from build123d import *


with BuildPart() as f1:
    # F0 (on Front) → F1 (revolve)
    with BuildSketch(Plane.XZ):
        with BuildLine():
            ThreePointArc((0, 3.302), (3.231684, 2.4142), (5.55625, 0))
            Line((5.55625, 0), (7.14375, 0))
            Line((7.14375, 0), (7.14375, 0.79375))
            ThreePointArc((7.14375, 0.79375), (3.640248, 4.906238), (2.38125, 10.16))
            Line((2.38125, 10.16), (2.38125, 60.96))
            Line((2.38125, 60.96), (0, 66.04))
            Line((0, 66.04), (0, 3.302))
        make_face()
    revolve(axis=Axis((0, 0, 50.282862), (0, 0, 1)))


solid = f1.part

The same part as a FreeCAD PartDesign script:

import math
import FreeCAD as App
import Part
import Sketcher
from FreeCAD import Vector
Q = App.Units.Quantity

doc = App.newDocument("Part")
body = doc.addObject("PartDesign::Body", "Body")

sketch1 = doc.addObject("Sketcher::SketchObject", "Sketch")
body.addObject(sketch1)
sketch1.AttachmentSupport = (doc.XZ_Plane, [""])
sketch1.MapMode = "FlatFace"
sketch1.addGeometry(Part.ArcOfCircle(Part.Circle(Vector(0, -3, 0), Vector(0, 0, 1), 6.3), math.radians(29), math.radians(90)), False)
sketch1.addGeometry(Part.LineSegment(Vector(5.6, 0, 0), Vector(7.1, 0, 0)), False)
sketch1.addGeometry(Part.LineSegment(Vector(7.1, 0, 0), Vector(7.1, 0.8, 0)), False)
sketch1.addGeometry(Part.ArcOfCircle(Part.Circle(Vector(14, 10.2, 0), Vector(0, 0, 1), 11.6), math.radians(180), math.radians(234)), False)
sketch1.addGeometry(Part.LineSegment(Vector(2.4, 10.2, 0), Vector(2.4, 61, 0)), False)
sketch1.addGeometry(Part.LineSegment(Vector(2.4, 61, 0), Vector(0, 66, 0)), False)
sketch1.addGeometry(Part.LineSegment(Vector(0, 66, 0), Vector(0, 3.3, 0)), False)
sketch1.addConstraint(Sketcher.Constraint("Coincident", 0, 1, 1, 1))
sketch1.addConstraint(Sketcher.Constraint("Coincident", 1, 2, 2, 1))
sketch1.addConstraint(Sketcher.Constraint("Coincident", 2, 2, 3, 2))
sketch1.addConstraint(Sketcher.Constraint("Tangent", 3, 1, 4, 1))
sketch1.addConstraint(Sketcher.Constraint("Coincident", 4, 2, 5, 1))
sketch1.addConstraint(Sketcher.Constraint("Coincident", 5, 2, 6, 1))
sketch1.addConstraint(Sketcher.Constraint("Coincident", 6, 2, 0, 2))
sketch1.addConstraint(Sketcher.Constraint("Horizontal", 1))
sketch1.addConstraint(Sketcher.Constraint("Vertical", 2))
sketch1.addConstraint(Sketcher.Constraint("Vertical", 4))
sketch1.addConstraint(Sketcher.Constraint("Vertical", 6))
sketch1.addConstraint(Sketcher.Constraint("PointOnObject", 0, 3, -2))
sketch1.addConstraint(Sketcher.Constraint("PointOnObject", 0, 1, -1))
sketch1.addConstraint(Sketcher.Constraint("PointOnObject", 5, 2, -2))
sketch1.addConstraint(Sketcher.Constraint("DistanceY", 4, 1, 4, 2, Q("2 in")))
sketch1.addConstraint(Sketcher.Constraint("DistanceY", 6, 2, 6, 1, Q("2.47 in")))
sketch1.addConstraint(Sketcher.Constraint("DistanceY", -1, 1, 3, 3, Q("0.4 in")))
sketch1.addConstraint(Sketcher.Constraint("DistanceY", -1, 1, 5, 2, Q("2.6 in")))
sketch1.addConstraint(Sketcher.Constraint("DistanceX", 1, 1, 1, 2, Q("0.0625 in")))
sketch1.addConstraint(Sketcher.Constraint("DistanceY", 2, 1, 2, 2, Q("0.03125 in")))
sketch1.addConstraint(Sketcher.Constraint("DistanceX", -1, 1, 0, 1, Q("0.21875 in")))
sketch1.addConstraint(Sketcher.Constraint("DistanceX", -1, 1, 3, 1, Q("0.09375 in")))
revolution = doc.addObject("PartDesign::Revolution", "Revolution")
body.addObject(revolution)
revolution.Profile = sketch1
revolution.ReferenceAxis = (sketch1, ["V_Axis"])
revolution.Angle = 360

doc.recompute()
